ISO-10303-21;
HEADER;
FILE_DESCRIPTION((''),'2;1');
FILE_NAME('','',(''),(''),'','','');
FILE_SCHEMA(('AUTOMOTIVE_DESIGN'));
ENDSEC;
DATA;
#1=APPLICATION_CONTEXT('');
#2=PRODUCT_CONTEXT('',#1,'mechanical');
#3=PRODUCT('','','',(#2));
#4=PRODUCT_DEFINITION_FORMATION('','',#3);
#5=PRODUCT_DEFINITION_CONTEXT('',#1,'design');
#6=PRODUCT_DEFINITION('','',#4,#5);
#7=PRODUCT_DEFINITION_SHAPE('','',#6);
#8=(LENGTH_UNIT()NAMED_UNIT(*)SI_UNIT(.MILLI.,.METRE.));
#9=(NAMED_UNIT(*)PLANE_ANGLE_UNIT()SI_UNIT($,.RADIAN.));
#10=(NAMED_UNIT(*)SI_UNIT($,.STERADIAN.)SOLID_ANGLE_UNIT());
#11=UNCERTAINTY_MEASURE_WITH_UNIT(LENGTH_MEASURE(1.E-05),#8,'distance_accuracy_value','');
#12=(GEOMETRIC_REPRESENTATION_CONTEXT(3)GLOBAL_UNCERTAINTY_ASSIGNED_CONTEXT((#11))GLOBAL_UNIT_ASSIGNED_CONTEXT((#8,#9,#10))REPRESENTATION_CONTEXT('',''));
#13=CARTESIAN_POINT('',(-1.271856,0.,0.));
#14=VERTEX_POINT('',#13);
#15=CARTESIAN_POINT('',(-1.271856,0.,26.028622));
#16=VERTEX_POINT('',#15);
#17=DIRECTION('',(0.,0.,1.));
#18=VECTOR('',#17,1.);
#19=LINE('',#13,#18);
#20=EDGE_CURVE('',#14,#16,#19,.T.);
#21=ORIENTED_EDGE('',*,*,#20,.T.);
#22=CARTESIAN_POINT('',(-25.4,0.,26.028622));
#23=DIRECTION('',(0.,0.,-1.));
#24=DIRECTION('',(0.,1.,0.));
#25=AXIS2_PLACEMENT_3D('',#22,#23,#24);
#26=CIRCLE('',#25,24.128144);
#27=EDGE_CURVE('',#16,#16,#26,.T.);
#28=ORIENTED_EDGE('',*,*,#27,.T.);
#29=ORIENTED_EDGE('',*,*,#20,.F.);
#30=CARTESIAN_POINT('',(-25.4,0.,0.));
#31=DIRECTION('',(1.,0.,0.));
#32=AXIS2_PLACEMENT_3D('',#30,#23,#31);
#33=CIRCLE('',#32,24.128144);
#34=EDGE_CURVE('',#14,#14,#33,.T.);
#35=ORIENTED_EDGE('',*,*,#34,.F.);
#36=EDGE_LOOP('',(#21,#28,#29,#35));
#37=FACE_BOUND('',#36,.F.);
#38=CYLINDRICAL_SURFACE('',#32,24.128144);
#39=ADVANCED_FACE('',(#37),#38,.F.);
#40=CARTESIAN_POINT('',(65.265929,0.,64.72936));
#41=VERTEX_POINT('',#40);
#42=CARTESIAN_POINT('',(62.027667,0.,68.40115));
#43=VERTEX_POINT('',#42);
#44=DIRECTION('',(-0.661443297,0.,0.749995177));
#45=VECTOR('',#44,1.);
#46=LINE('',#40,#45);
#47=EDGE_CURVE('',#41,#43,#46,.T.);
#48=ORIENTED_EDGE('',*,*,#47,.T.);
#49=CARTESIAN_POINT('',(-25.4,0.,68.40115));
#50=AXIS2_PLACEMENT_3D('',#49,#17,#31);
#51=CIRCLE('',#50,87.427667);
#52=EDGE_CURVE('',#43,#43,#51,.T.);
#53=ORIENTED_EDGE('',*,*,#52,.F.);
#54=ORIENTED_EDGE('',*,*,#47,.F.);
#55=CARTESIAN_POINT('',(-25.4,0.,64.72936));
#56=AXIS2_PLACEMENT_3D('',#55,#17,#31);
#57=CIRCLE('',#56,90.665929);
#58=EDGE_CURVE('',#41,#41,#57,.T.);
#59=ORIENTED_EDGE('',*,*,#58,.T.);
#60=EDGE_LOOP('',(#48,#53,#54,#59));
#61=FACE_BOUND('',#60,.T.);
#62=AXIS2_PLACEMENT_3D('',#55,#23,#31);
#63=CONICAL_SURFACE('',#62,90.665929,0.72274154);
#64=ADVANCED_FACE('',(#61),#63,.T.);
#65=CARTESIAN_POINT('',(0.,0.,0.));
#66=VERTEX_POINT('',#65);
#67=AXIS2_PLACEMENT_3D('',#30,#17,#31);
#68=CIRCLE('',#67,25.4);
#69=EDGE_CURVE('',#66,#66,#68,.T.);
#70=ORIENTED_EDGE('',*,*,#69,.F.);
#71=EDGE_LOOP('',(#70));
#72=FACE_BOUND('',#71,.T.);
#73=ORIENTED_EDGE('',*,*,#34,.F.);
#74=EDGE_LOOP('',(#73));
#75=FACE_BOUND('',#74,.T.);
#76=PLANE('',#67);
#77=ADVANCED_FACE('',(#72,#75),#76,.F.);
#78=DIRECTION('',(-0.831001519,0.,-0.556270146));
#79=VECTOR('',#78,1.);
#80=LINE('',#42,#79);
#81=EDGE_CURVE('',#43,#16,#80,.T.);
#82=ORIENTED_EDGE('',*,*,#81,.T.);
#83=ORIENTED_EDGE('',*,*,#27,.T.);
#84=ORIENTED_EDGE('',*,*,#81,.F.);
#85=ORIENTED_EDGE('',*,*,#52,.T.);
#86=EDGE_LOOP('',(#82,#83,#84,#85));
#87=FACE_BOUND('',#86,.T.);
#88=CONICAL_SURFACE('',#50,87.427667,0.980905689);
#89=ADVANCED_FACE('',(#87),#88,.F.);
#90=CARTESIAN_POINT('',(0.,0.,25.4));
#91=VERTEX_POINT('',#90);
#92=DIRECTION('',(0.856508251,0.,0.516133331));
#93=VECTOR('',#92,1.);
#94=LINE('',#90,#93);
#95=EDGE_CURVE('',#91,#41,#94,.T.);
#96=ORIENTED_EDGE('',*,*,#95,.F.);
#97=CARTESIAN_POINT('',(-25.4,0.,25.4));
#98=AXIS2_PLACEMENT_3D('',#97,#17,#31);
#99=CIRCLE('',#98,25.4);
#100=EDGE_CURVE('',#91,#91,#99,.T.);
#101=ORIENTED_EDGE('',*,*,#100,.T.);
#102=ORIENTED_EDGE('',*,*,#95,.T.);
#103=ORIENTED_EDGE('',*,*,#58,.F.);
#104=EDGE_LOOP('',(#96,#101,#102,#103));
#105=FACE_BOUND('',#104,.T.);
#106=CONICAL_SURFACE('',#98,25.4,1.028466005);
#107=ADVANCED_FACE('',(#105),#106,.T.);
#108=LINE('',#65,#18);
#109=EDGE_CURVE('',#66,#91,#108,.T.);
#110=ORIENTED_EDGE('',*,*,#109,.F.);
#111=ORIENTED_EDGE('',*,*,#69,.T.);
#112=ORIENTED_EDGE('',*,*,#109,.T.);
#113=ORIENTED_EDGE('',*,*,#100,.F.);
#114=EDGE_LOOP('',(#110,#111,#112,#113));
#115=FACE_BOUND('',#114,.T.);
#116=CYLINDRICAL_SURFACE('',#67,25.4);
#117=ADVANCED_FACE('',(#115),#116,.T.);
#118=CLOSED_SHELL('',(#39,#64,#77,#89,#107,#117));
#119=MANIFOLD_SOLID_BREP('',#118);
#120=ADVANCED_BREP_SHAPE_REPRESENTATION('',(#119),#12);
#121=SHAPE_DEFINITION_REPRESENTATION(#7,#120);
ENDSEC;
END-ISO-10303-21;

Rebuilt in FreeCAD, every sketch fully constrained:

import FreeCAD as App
import Part
import Sketcher
Q = App.Units.Quantity

doc = App.newDocument("Part")
body = doc.addObject("PartDesign::Body", "Body")

# Sketch on XZ plane
sketch1 = doc.addObject("Sketcher::SketchObject", "Sketch")
body.addObject(sketch1)
sketch1.AttachmentSupport = (doc.XZ_Plane, [""])
sketch1.MapMode = "FlatFace"
sketch1.addGeometry(Part.LineSegment(App.Vector(-25.4, 0, 0), App.Vector(0, 0, 0)), False)
sketch1.addGeometry(Part.LineSegment(App.Vector(0, 0, 0), App.Vector(0, 25.4, 0)), False)
sketch1.addGeometry(Part.LineSegment(App.Vector(0, 25.4, 0), App.Vector(65.3, 64.7, 0)), False)
sketch1.addGeometry(Part.LineSegment(App.Vector(65.3, 64.7, 0), App.Vector(62, 68.4, 0)), False)
sketch1.addGeometry(Part.LineSegment(App.Vector(62, 68.4, 0), App.Vector(-2.2, 25.4, 0)), False)
sketch1.addGeometry(Part.LineSegment(App.Vector(-2.2, 25.4, 0), App.Vector(-25.4, 25.4, 0)), False)
sketch1.addGeometry(Part.LineSegment(App.Vector(-25.4, 25.4, 0), App.Vector(-25.4, 0, 0)), False)
sketch1.addGeometry(Part.LineSegment(App.Vector(-25.4, 0, 0), App.Vector(-25.4, 68.4, 0)), True)  # axis
sketch1.addConstraint(Sketcher.Constraint("Coincident", 0, 2, 1, 1))
sketch1.addConstraint(Sketcher.Constraint("Coincident", 1, 2, 2, 1))
sketch1.addConstraint(Sketcher.Constraint("Coincident", 2, 2, 3, 1))
sketch1.addConstraint(Sketcher.Constraint("Coincident", 3, 2, 4, 1))
sketch1.addConstraint(Sketcher.Constraint("Coincident", 4, 2, 5, 1))
sketch1.addConstraint(Sketcher.Constraint("Coincident", 5, 2, 6, 1))
sketch1.addConstraint(Sketcher.Constraint("Coincident", 6, 2, 0, 1))
sketch1.addConstraint(Sketcher.Constraint("Horizontal", 0))
sketch1.addConstraint(Sketcher.Constraint("Vertical", 1))
sketch1.addConstraint(Sketcher.Constraint("Horizontal", 5))
sketch1.addConstraint(Sketcher.Constraint("Vertical", 6))
sketch1.addConstraint(Sketcher.Constraint("Vertical", 7))
sketch1.addConstraint(Sketcher.Constraint("Coincident", 0, 2, -1, 1))
sketch1.addConstraint(Sketcher.Constraint("Coincident", 7, 1, 6, 2))
sketch1.addConstraint(Sketcher.Constraint("Horizontal", 1, 2, 4, 2))
sketch1.addConstraint(Sketcher.Constraint("Horizontal", 3, 2, 7, 2))
sketch1.addConstraint(Sketcher.Constraint("Equal", 0, 1))
sketch1.addConstraint(Sketcher.Constraint("DistanceX", 0, 1, 0, 2, Q("1 in")))
sketch1.addConstraint(Sketcher.Constraint("Distance", 2, Q("3 in")))
sketch1.addConstraint(Sketcher.Constraint("DistanceY", -1, 1, 2, 2, Q("2.5484 in")))
sketch1.addConstraint(Sketcher.Constraint("DistanceY", 7, 1, 7, 2, Q("68.40115 mm")))
sketch1.addConstraint(Sketcher.Constraint("Distance", 3, Q("4.895751 mm")))
sketch1.addConstraint(Sketcher.Constraint("Distance", 4, Q("77.302638 mm")))
revolution = doc.addObject("PartDesign::Revolution", "Revolution")
body.addObject(revolution)
revolution.Profile = sketch1
revolution.ReferenceAxis = (sketch1, ["Axis0"])
revolution.Angle = 360

# Sketch on XY plane
sketch2 = doc.addObject("Sketcher::SketchObject", "Sketch001")
body.addObject(sketch2)
sketch2.AttachmentSupport = (doc.XY_Plane, [""])
sketch2.MapMode = "FlatFace"
sketch2.addGeometry(Part.Circle(App.Vector(-25, 0, 0), App.Vector(0, 0, 1), 24), False)
sketch2.addConstraint(Sketcher.Constraint("PointOnObject", 0, 3, -1))
sketch2.addConstraint(Sketcher.Constraint("DistanceX", 0, 3, -1, 1, Q("1 in")))
sketch2.addConstraint(Sketcher.Constraint("Diameter", 0, Q("48.256288 mm")))
pocket1 = doc.addObject("PartDesign::Pocket", "Pocket")
body.addObject(pocket1)
pocket1.Profile = sketch2
pocket1.Length = Q("30 in")
pocket1.Reversed = True

doc.recompute()
